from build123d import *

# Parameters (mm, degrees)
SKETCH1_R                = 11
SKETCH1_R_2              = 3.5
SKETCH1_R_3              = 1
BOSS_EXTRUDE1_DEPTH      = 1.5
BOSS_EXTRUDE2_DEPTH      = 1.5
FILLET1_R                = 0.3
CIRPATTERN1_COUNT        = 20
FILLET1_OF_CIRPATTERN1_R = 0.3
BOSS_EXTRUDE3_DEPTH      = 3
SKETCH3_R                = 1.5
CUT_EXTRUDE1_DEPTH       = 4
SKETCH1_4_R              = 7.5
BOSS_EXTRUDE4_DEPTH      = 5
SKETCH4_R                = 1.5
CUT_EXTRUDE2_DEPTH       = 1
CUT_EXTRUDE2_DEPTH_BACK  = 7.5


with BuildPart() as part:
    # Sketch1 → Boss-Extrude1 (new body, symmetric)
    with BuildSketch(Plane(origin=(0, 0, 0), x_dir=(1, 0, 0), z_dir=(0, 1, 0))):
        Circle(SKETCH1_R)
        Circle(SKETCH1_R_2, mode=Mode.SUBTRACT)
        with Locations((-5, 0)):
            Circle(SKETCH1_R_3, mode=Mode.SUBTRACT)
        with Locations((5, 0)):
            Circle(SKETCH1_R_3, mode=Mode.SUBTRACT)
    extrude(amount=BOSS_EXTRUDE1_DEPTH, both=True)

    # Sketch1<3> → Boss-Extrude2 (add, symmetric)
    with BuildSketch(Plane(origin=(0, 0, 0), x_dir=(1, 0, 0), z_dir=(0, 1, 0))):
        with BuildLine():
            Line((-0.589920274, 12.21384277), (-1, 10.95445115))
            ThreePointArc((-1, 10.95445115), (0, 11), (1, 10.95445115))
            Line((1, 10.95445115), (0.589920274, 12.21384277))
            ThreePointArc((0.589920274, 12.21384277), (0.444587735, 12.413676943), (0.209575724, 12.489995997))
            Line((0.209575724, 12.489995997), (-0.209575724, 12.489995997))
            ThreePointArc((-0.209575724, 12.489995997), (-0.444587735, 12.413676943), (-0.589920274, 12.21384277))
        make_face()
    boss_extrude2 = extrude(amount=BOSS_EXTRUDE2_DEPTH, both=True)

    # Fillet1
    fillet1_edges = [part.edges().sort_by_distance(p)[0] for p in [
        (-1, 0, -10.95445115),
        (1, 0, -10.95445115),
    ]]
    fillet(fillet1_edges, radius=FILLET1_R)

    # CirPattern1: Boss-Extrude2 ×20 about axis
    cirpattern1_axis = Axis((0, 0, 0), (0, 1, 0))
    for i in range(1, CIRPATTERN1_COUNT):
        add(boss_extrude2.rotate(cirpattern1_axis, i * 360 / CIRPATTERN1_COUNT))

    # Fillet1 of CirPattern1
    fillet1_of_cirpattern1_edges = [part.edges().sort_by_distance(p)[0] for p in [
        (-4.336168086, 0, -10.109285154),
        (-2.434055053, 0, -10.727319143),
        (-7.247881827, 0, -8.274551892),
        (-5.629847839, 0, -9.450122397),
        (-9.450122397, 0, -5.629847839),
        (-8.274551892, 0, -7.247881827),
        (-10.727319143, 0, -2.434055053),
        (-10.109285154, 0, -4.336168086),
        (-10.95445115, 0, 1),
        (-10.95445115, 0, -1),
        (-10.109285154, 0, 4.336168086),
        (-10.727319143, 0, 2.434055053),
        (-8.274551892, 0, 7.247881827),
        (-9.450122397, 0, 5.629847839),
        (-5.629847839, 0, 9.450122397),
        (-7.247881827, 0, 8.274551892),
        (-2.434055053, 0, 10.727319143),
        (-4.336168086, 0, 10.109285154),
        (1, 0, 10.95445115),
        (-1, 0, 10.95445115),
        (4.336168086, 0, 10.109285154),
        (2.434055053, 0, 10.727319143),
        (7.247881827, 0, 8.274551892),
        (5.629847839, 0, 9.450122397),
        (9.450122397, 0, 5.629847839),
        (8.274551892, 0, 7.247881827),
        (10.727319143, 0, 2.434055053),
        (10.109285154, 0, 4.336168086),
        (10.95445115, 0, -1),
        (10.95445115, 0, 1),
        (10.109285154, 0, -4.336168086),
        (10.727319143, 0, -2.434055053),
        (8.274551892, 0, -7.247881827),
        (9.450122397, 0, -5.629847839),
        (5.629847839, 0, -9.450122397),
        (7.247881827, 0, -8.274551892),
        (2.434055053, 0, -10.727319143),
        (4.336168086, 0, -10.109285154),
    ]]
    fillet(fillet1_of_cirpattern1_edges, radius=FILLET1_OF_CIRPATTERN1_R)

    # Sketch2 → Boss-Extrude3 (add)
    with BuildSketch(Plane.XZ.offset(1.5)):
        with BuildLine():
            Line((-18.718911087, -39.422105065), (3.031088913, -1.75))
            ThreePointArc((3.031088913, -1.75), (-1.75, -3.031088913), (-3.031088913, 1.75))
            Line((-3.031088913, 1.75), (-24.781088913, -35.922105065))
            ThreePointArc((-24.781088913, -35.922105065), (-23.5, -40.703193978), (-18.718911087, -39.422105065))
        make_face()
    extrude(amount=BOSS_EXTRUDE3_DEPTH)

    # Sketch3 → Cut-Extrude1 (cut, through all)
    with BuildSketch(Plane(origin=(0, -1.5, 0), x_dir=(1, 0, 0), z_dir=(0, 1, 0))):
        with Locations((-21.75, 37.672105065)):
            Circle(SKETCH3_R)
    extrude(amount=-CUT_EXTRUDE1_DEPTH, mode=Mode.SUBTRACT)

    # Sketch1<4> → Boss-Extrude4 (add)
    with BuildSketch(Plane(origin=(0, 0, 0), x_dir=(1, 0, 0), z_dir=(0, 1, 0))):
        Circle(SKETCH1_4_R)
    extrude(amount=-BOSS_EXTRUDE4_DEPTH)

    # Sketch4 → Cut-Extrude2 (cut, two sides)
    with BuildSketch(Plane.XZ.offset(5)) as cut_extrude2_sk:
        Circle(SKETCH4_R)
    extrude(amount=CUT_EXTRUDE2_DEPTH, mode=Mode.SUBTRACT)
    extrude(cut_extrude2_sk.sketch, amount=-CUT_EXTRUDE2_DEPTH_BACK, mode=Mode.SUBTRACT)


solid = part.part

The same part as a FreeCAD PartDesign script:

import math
import FreeCAD as App
import Part
import Sketcher
Q = App.Units.Quantity


def edges_at(feature, points):
    """Names of the edges that pass closest to the given points."""
    edges = feature.Shape.Edges
    near = lambda p: min(range(len(edges)), key=lambda i: edges[i].distToShape(Part.Vertex(*p))[0])
    return sorted({f"Edge{near(p) + 1}" for p in points})

doc = App.newDocument("Part")
body = doc.addObject("PartDesign::Body", "Body")

# Sketch on XZ plane
sketch1 = doc.addObject("Sketcher::SketchObject", "Sketch")
body.addObject(sketch1)
sketch1.AttachmentSupport = (doc.XZ_Plane, [""])
sketch1.MapMode = "FlatFace"
sketch1.addGeometry(Part.Circle(App.Vector(0, 0, 0), App.Vector(0, 0, 1), 11), False)
sketch1.addGeometry(Part.Circle(App.Vector(-5, 0, 0), App.Vector(0, 0, 1), 1), False)
sketch1.addGeometry(Part.Circle(App.Vector(0, 0, 0), App.Vector(0, 0, 1), 3.5), False)
sketch1.addGeometry(Part.Circle(App.Vector(5, 0, 0), App.Vector(0, 0, 1), 1), False)
sketch1.addConstraint(Sketcher.Constraint("Coincident", 0, 3, -1, 1))
sketch1.addConstraint(Sketcher.Constraint("Coincident", 2, 3, -1, 1))
sketch1.addConstraint(Sketcher.Constraint("Equal", 1, 3))
sketch1.addConstraint(Sketcher.Constraint("Symmetric", 1, 3, 3, 3, -1, 1))
sketch1.addConstraint(Sketcher.Constraint("PointOnObject", 1, 3, -1))
sketch1.addConstraint(Sketcher.Constraint("Diameter", 0, Q("22 mm")))
sketch1.addConstraint(Sketcher.Constraint("Diameter", 1, Q("2 mm")))
sketch1.addConstraint(Sketcher.Constraint("Diameter", 2, Q("7 mm")))
sketch1.addConstraint(Sketcher.Constraint("DistanceX", 1, 3, -1, 1, Q("5 mm")))
pad1 = doc.addObject("PartDesign::Pad", "Pad")
body.addObject(pad1)
pad1.Profile = sketch1
pad1.Length = 3
pad1.Midplane = True

# Sketch on XZ plane
sketch2 = doc.addObject("Sketcher::SketchObject", "Sketch001")
body.addObject(sketch2)
sketch2.AttachmentSupport = (doc.XZ_Plane, [""])
sketch2.MapMode = "FlatFace"
sketch2.addGeometry(Part.LineSegment(App.Vector(-0.59, -12.21, 0), App.Vector(-1, -10.95, 0)), False)
sketch2.addGeometry(Part.ArcOfCircle(Part.Circle(App.Vector(0, 0, 0), App.Vector(0, 0, 1), 11), math.radians(-95.22), math.radians(-84.78)), False)
sketch2.addGeometry(Part.LineSegment(App.Vector(1, -10.95, 0), App.Vector(0.59, -12.21, 0)), False)
sketch2.addGeometry(Part.ArcOfCircle(Part.Circle(App.Vector(0.21, -12.09, 0), App.Vector(0, 0, 1), 0.4), math.radians(-90), math.radians(-18)), False)
sketch2.addGeometry(Part.LineSegment(App.Vector(0.21, -12.49, 0), App.Vector(-0.21, -12.49, 0)), False)
sketch2.addGeometry(Part.ArcOfCircle(Part.Circle(App.Vector(-0.21, -12.09, 0), App.Vector(0, 0, 1), 0.4), math.radians(-162), math.radians(-90)), False)
sketch2.addConstraint(Sketcher.Constraint("Coincident", 0, 2, 1, 1))
sketch2.addConstraint(Sketcher.Constraint("Coincident", 1, 2, 2, 1))
sketch2.addConstraint(Sketcher.Constraint("Tangent", 2, 2, 3, 2))
sketch2.addConstraint(Sketcher.Constraint("Tangent", 3, 1, 4, 1))
sketch2.addConstraint(Sketcher.Constraint("Tangent", 4, 2, 5, 2))
sketch2.addConstraint(Sketcher.Constraint("Tangent", 5, 1, 0, 1))
sketch2.addConstraint(Sketcher.Constraint("Horizontal", 4))
sketch2.addConstraint(Sketcher.Constraint("Coincident", 1, 3, -1, 1))
sketch2.addConstraint(Sketcher.Constraint("Equal", 3, 5))
sketch2.addConstraint(Sketcher.Constraint("Symmetric", 2, 2, 5, 1, -2))
sketch2.addConstraint(Sketcher.Constraint("Radius", 1, Q("11 mm")))
sketch2.addConstraint(Sketcher.Constraint("Radius", 3, Q("0.4 mm")))
sketch2.addConstraint(Sketcher.Constraint("DistanceX", 0, 2, -1, 1, Q("1 mm")))
sketch2.addConstraint(Sketcher.Constraint("DistanceX", 4, 2, 4, 1, Q("0.419151 mm")))
sketch2.addConstraint(Sketcher.Constraint("DistanceX", -1, 1, 2, 2, Q("0.58992 mm")))
pad2 = doc.addObject("PartDesign::Pad", "Pad001")
body.addObject(pad2)
pad2.Profile = sketch2
pad2.Length = 3
pad2.Midplane = True
doc.recompute()

fillet = doc.addObject("PartDesign::Fillet", "Fillet")
body.addObject(fillet)
fillet.Base = (pad2, edges_at(pad2, [(-1, 0, -10.954), (1, 0, -10.954)]))
fillet.Radius = 0.3
doc.recompute()

polarpattern = doc.addObject("PartDesign::PolarPattern", "PolarPattern")
body.addObject(polarpattern)
polarpattern.Originals = [pad2]
polarpattern.Axis = (doc.Y_Axis, [""])
polarpattern.Angle = 360
polarpattern.Occurrences = 20
body.Tip = polarpattern
doc.recompute()

fillet2 = doc.addObject("PartDesign::Fillet", "Fillet001")
body.addObject(fillet2)
fillet2.Base = (polarpattern, edges_at(polarpattern, [
    (-4.336, 0, -10.109),
    (-2.434, 0, -10.727),
    (-7.248, 0, -8.275),
    (-5.63, 0, -9.45),
    (-9.45, 0, -5.63),
    (-8.275, 0, -7.248),
    (-10.727, 0, -2.434),
    (-10.109, 0, -4.336),
    (-10.954, 0, 1),
    (-10.954, 0, -1),
    (-10.109, 0, 4.336),
    (-10.727, 0, 2.434),
    (-8.275, 0, 7.248),
    (-9.45, 0, 5.63),
    (-5.63, 0, 9.45),
    (-7.248, 0, 8.275),
    (-2.434, 0, 10.727),
    (-4.336, 0, 10.109),
    (1, 0, 10.954),
    (-1, 0, 10.954),
    (4.336, 0, 10.109),
    (2.434, 0, 10.727),
    (7.248, 0, 8.275),
    (5.63, 0, 9.45),
    (9.45, 0, 5.63),
    (8.275, 0, 7.248),
    (10.727, 0, 2.434),
    (10.109, 0, 4.336),
    (10.954, 0, -1),
    (10.954, 0, 1),
    (10.109, 0, -4.336),
    (10.727, 0, -2.434),
    (8.275, 0, -7.248),
    (9.45, 0, -5.63),
    (5.63, 0, -9.45),
    (7.248, 0, -8.275),
    (2.434, 0, -10.727),
    (4.336, 0, -10.109),
]))
fillet2.Radius = 0.3

# Sketch on XZ plane
sketch3 = doc.addObject("Sketcher::SketchObject", "Sketch002")
body.addObject(sketch3)
sketch3.AttachmentSupport = (doc.XZ_Plane, [""])
sketch3.MapMode = "FlatFace"
sketch3.AttachmentOffset = App.Placement(App.Vector(0, 0, 1.5), App.Rotation())
sketch3.addGeometry(Part.LineSegment(App.Vector(-18.7, -39.4, 0), App.Vector(3, -1.8, 0)), False)
sketch3.addGeometry(Part.ArcOfCircle(Part.Circle(App.Vector(0, 0, 0), App.Vector(0, 0, 1), 3.5), math.radians(150), math.radians(330)), False)
sketch3.addGeometry(Part.LineSegment(App.Vector(-3, 1.8, 0), App.Vector(-24.8, -35.9, 0)), False)
sketch3.addGeometry(Part.ArcOfCircle(Part.Circle(App.Vector(-21.8, -37.7, 0), App.Vector(0, 0, 1), 3.5), math.radians(150), math.radians(330)), False)
sketch3.addConstraint(Sketcher.Constraint("Tangent", 0, 2, 1, 2))
sketch3.addConstraint(Sketcher.Constraint("Tangent", 1, 1, 2, 1))
sketch3.addConstraint(Sketcher.Constraint("Tangent", 2, 2, 3, 1))
sketch3.addConstraint(Sketcher.Constraint("Tangent", 3, 2, 0, 1))
sketch3.addConstraint(Sketcher.Constraint("Coincident", 1, 3, -1, 1))
sketch3.addConstraint(Sketcher.Constraint("Equal", 1, 3))
sketch3.addConstraint(Sketcher.Constraint("Radius", 1, Q("3.5 mm")))
sketch3.addConstraint(Sketcher.Constraint("Angle", 0, Q("60 deg")))
sketch3.addConstraint(Sketcher.Constraint("Distance", 0, Q("43.5 mm")))
pad3 = doc.addObject("PartDesign::Pad", "Pad002")
body.addObject(pad3)
pad3.Profile = sketch3
pad3.Length = 3

# Sketch on XZ plane
sketch4 = doc.addObject("Sketcher::SketchObject", "Sketch003")
body.addObject(sketch4)
sketch4.AttachmentSupport = (doc.XZ_Plane, [""])
sketch4.MapMode = "FlatFace"
sketch4.AttachmentOffset = App.Placement(App.Vector(0, 0, 1.5), App.Rotation())
sketch4.addGeometry(Part.Circle(App.Vector(-21.8, -37.7, 0), App.Vector(0, 0, 1), 1.5), False)
sketch4.addConstraint(Sketcher.Constraint("Diameter", 0, Q("3 mm")))
sketch4.addConstraint(Sketcher.Constraint("DistanceX", 0, 3, -1, 1, Q("21.75 mm")))
sketch4.addConstraint(Sketcher.Constraint("DistanceY", 0, 3, -1, 1, Q("37.672105 mm")))
pocket1 = doc.addObject("PartDesign::Pocket", "Pocket")
body.addObject(pocket1)
pocket1.Profile = sketch4
pocket1.Type = "ThroughAll"
pocket1.Reversed = True

# Sketch on XZ plane
sketch5 = doc.addObject("Sketcher::SketchObject", "Sketch004")
body.addObject(sketch5)
sketch5.AttachmentSupport = (doc.XZ_Plane, [""])
sketch5.MapMode = "FlatFace"
sketch5.addGeometry(Part.Circle(App.Vector(0, 0, 0), App.Vector(0, 0, 1), 8), False)
sketch5.addConstraint(Sketcher.Constraint("Coincident", 0, 3, -1, 1))
sketch5.addConstraint(Sketcher.Constraint("Diameter", 0, Q("15 mm")))
pad4 = doc.addObject("PartDesign::Pad", "Pad003")
body.addObject(pad4)
pad4.Profile = sketch5
pad4.Length = 5

# Sketch on XZ plane
sketch6 = doc.addObject("Sketcher::SketchObject", "Sketch005")
body.addObject(sketch6)
sketch6.AttachmentSupport = (doc.XZ_Plane, [""])
sketch6.MapMode = "FlatFace"
sketch6.AttachmentOffset = App.Placement(App.Vector(0, 0, 5), App.Rotation())
sketch6.addGeometry(Part.Circle(App.Vector(0, 0, 0), App.Vector(0, 0, 1), 1.5), False)
sketch6.addConstraint(Sketcher.Constraint("Coincident", 0, 3, -1, 1))
sketch6.addConstraint(Sketcher.Constraint("Diameter", 0, Q("3 mm")))
pocket2 = doc.addObject("PartDesign::Pocket", "Pocket001")
body.addObject(pocket2)
pocket2.Profile = sketch6
pocket2.Type = "ThroughAll"
pocket2.Midplane = True

doc.recompute()
